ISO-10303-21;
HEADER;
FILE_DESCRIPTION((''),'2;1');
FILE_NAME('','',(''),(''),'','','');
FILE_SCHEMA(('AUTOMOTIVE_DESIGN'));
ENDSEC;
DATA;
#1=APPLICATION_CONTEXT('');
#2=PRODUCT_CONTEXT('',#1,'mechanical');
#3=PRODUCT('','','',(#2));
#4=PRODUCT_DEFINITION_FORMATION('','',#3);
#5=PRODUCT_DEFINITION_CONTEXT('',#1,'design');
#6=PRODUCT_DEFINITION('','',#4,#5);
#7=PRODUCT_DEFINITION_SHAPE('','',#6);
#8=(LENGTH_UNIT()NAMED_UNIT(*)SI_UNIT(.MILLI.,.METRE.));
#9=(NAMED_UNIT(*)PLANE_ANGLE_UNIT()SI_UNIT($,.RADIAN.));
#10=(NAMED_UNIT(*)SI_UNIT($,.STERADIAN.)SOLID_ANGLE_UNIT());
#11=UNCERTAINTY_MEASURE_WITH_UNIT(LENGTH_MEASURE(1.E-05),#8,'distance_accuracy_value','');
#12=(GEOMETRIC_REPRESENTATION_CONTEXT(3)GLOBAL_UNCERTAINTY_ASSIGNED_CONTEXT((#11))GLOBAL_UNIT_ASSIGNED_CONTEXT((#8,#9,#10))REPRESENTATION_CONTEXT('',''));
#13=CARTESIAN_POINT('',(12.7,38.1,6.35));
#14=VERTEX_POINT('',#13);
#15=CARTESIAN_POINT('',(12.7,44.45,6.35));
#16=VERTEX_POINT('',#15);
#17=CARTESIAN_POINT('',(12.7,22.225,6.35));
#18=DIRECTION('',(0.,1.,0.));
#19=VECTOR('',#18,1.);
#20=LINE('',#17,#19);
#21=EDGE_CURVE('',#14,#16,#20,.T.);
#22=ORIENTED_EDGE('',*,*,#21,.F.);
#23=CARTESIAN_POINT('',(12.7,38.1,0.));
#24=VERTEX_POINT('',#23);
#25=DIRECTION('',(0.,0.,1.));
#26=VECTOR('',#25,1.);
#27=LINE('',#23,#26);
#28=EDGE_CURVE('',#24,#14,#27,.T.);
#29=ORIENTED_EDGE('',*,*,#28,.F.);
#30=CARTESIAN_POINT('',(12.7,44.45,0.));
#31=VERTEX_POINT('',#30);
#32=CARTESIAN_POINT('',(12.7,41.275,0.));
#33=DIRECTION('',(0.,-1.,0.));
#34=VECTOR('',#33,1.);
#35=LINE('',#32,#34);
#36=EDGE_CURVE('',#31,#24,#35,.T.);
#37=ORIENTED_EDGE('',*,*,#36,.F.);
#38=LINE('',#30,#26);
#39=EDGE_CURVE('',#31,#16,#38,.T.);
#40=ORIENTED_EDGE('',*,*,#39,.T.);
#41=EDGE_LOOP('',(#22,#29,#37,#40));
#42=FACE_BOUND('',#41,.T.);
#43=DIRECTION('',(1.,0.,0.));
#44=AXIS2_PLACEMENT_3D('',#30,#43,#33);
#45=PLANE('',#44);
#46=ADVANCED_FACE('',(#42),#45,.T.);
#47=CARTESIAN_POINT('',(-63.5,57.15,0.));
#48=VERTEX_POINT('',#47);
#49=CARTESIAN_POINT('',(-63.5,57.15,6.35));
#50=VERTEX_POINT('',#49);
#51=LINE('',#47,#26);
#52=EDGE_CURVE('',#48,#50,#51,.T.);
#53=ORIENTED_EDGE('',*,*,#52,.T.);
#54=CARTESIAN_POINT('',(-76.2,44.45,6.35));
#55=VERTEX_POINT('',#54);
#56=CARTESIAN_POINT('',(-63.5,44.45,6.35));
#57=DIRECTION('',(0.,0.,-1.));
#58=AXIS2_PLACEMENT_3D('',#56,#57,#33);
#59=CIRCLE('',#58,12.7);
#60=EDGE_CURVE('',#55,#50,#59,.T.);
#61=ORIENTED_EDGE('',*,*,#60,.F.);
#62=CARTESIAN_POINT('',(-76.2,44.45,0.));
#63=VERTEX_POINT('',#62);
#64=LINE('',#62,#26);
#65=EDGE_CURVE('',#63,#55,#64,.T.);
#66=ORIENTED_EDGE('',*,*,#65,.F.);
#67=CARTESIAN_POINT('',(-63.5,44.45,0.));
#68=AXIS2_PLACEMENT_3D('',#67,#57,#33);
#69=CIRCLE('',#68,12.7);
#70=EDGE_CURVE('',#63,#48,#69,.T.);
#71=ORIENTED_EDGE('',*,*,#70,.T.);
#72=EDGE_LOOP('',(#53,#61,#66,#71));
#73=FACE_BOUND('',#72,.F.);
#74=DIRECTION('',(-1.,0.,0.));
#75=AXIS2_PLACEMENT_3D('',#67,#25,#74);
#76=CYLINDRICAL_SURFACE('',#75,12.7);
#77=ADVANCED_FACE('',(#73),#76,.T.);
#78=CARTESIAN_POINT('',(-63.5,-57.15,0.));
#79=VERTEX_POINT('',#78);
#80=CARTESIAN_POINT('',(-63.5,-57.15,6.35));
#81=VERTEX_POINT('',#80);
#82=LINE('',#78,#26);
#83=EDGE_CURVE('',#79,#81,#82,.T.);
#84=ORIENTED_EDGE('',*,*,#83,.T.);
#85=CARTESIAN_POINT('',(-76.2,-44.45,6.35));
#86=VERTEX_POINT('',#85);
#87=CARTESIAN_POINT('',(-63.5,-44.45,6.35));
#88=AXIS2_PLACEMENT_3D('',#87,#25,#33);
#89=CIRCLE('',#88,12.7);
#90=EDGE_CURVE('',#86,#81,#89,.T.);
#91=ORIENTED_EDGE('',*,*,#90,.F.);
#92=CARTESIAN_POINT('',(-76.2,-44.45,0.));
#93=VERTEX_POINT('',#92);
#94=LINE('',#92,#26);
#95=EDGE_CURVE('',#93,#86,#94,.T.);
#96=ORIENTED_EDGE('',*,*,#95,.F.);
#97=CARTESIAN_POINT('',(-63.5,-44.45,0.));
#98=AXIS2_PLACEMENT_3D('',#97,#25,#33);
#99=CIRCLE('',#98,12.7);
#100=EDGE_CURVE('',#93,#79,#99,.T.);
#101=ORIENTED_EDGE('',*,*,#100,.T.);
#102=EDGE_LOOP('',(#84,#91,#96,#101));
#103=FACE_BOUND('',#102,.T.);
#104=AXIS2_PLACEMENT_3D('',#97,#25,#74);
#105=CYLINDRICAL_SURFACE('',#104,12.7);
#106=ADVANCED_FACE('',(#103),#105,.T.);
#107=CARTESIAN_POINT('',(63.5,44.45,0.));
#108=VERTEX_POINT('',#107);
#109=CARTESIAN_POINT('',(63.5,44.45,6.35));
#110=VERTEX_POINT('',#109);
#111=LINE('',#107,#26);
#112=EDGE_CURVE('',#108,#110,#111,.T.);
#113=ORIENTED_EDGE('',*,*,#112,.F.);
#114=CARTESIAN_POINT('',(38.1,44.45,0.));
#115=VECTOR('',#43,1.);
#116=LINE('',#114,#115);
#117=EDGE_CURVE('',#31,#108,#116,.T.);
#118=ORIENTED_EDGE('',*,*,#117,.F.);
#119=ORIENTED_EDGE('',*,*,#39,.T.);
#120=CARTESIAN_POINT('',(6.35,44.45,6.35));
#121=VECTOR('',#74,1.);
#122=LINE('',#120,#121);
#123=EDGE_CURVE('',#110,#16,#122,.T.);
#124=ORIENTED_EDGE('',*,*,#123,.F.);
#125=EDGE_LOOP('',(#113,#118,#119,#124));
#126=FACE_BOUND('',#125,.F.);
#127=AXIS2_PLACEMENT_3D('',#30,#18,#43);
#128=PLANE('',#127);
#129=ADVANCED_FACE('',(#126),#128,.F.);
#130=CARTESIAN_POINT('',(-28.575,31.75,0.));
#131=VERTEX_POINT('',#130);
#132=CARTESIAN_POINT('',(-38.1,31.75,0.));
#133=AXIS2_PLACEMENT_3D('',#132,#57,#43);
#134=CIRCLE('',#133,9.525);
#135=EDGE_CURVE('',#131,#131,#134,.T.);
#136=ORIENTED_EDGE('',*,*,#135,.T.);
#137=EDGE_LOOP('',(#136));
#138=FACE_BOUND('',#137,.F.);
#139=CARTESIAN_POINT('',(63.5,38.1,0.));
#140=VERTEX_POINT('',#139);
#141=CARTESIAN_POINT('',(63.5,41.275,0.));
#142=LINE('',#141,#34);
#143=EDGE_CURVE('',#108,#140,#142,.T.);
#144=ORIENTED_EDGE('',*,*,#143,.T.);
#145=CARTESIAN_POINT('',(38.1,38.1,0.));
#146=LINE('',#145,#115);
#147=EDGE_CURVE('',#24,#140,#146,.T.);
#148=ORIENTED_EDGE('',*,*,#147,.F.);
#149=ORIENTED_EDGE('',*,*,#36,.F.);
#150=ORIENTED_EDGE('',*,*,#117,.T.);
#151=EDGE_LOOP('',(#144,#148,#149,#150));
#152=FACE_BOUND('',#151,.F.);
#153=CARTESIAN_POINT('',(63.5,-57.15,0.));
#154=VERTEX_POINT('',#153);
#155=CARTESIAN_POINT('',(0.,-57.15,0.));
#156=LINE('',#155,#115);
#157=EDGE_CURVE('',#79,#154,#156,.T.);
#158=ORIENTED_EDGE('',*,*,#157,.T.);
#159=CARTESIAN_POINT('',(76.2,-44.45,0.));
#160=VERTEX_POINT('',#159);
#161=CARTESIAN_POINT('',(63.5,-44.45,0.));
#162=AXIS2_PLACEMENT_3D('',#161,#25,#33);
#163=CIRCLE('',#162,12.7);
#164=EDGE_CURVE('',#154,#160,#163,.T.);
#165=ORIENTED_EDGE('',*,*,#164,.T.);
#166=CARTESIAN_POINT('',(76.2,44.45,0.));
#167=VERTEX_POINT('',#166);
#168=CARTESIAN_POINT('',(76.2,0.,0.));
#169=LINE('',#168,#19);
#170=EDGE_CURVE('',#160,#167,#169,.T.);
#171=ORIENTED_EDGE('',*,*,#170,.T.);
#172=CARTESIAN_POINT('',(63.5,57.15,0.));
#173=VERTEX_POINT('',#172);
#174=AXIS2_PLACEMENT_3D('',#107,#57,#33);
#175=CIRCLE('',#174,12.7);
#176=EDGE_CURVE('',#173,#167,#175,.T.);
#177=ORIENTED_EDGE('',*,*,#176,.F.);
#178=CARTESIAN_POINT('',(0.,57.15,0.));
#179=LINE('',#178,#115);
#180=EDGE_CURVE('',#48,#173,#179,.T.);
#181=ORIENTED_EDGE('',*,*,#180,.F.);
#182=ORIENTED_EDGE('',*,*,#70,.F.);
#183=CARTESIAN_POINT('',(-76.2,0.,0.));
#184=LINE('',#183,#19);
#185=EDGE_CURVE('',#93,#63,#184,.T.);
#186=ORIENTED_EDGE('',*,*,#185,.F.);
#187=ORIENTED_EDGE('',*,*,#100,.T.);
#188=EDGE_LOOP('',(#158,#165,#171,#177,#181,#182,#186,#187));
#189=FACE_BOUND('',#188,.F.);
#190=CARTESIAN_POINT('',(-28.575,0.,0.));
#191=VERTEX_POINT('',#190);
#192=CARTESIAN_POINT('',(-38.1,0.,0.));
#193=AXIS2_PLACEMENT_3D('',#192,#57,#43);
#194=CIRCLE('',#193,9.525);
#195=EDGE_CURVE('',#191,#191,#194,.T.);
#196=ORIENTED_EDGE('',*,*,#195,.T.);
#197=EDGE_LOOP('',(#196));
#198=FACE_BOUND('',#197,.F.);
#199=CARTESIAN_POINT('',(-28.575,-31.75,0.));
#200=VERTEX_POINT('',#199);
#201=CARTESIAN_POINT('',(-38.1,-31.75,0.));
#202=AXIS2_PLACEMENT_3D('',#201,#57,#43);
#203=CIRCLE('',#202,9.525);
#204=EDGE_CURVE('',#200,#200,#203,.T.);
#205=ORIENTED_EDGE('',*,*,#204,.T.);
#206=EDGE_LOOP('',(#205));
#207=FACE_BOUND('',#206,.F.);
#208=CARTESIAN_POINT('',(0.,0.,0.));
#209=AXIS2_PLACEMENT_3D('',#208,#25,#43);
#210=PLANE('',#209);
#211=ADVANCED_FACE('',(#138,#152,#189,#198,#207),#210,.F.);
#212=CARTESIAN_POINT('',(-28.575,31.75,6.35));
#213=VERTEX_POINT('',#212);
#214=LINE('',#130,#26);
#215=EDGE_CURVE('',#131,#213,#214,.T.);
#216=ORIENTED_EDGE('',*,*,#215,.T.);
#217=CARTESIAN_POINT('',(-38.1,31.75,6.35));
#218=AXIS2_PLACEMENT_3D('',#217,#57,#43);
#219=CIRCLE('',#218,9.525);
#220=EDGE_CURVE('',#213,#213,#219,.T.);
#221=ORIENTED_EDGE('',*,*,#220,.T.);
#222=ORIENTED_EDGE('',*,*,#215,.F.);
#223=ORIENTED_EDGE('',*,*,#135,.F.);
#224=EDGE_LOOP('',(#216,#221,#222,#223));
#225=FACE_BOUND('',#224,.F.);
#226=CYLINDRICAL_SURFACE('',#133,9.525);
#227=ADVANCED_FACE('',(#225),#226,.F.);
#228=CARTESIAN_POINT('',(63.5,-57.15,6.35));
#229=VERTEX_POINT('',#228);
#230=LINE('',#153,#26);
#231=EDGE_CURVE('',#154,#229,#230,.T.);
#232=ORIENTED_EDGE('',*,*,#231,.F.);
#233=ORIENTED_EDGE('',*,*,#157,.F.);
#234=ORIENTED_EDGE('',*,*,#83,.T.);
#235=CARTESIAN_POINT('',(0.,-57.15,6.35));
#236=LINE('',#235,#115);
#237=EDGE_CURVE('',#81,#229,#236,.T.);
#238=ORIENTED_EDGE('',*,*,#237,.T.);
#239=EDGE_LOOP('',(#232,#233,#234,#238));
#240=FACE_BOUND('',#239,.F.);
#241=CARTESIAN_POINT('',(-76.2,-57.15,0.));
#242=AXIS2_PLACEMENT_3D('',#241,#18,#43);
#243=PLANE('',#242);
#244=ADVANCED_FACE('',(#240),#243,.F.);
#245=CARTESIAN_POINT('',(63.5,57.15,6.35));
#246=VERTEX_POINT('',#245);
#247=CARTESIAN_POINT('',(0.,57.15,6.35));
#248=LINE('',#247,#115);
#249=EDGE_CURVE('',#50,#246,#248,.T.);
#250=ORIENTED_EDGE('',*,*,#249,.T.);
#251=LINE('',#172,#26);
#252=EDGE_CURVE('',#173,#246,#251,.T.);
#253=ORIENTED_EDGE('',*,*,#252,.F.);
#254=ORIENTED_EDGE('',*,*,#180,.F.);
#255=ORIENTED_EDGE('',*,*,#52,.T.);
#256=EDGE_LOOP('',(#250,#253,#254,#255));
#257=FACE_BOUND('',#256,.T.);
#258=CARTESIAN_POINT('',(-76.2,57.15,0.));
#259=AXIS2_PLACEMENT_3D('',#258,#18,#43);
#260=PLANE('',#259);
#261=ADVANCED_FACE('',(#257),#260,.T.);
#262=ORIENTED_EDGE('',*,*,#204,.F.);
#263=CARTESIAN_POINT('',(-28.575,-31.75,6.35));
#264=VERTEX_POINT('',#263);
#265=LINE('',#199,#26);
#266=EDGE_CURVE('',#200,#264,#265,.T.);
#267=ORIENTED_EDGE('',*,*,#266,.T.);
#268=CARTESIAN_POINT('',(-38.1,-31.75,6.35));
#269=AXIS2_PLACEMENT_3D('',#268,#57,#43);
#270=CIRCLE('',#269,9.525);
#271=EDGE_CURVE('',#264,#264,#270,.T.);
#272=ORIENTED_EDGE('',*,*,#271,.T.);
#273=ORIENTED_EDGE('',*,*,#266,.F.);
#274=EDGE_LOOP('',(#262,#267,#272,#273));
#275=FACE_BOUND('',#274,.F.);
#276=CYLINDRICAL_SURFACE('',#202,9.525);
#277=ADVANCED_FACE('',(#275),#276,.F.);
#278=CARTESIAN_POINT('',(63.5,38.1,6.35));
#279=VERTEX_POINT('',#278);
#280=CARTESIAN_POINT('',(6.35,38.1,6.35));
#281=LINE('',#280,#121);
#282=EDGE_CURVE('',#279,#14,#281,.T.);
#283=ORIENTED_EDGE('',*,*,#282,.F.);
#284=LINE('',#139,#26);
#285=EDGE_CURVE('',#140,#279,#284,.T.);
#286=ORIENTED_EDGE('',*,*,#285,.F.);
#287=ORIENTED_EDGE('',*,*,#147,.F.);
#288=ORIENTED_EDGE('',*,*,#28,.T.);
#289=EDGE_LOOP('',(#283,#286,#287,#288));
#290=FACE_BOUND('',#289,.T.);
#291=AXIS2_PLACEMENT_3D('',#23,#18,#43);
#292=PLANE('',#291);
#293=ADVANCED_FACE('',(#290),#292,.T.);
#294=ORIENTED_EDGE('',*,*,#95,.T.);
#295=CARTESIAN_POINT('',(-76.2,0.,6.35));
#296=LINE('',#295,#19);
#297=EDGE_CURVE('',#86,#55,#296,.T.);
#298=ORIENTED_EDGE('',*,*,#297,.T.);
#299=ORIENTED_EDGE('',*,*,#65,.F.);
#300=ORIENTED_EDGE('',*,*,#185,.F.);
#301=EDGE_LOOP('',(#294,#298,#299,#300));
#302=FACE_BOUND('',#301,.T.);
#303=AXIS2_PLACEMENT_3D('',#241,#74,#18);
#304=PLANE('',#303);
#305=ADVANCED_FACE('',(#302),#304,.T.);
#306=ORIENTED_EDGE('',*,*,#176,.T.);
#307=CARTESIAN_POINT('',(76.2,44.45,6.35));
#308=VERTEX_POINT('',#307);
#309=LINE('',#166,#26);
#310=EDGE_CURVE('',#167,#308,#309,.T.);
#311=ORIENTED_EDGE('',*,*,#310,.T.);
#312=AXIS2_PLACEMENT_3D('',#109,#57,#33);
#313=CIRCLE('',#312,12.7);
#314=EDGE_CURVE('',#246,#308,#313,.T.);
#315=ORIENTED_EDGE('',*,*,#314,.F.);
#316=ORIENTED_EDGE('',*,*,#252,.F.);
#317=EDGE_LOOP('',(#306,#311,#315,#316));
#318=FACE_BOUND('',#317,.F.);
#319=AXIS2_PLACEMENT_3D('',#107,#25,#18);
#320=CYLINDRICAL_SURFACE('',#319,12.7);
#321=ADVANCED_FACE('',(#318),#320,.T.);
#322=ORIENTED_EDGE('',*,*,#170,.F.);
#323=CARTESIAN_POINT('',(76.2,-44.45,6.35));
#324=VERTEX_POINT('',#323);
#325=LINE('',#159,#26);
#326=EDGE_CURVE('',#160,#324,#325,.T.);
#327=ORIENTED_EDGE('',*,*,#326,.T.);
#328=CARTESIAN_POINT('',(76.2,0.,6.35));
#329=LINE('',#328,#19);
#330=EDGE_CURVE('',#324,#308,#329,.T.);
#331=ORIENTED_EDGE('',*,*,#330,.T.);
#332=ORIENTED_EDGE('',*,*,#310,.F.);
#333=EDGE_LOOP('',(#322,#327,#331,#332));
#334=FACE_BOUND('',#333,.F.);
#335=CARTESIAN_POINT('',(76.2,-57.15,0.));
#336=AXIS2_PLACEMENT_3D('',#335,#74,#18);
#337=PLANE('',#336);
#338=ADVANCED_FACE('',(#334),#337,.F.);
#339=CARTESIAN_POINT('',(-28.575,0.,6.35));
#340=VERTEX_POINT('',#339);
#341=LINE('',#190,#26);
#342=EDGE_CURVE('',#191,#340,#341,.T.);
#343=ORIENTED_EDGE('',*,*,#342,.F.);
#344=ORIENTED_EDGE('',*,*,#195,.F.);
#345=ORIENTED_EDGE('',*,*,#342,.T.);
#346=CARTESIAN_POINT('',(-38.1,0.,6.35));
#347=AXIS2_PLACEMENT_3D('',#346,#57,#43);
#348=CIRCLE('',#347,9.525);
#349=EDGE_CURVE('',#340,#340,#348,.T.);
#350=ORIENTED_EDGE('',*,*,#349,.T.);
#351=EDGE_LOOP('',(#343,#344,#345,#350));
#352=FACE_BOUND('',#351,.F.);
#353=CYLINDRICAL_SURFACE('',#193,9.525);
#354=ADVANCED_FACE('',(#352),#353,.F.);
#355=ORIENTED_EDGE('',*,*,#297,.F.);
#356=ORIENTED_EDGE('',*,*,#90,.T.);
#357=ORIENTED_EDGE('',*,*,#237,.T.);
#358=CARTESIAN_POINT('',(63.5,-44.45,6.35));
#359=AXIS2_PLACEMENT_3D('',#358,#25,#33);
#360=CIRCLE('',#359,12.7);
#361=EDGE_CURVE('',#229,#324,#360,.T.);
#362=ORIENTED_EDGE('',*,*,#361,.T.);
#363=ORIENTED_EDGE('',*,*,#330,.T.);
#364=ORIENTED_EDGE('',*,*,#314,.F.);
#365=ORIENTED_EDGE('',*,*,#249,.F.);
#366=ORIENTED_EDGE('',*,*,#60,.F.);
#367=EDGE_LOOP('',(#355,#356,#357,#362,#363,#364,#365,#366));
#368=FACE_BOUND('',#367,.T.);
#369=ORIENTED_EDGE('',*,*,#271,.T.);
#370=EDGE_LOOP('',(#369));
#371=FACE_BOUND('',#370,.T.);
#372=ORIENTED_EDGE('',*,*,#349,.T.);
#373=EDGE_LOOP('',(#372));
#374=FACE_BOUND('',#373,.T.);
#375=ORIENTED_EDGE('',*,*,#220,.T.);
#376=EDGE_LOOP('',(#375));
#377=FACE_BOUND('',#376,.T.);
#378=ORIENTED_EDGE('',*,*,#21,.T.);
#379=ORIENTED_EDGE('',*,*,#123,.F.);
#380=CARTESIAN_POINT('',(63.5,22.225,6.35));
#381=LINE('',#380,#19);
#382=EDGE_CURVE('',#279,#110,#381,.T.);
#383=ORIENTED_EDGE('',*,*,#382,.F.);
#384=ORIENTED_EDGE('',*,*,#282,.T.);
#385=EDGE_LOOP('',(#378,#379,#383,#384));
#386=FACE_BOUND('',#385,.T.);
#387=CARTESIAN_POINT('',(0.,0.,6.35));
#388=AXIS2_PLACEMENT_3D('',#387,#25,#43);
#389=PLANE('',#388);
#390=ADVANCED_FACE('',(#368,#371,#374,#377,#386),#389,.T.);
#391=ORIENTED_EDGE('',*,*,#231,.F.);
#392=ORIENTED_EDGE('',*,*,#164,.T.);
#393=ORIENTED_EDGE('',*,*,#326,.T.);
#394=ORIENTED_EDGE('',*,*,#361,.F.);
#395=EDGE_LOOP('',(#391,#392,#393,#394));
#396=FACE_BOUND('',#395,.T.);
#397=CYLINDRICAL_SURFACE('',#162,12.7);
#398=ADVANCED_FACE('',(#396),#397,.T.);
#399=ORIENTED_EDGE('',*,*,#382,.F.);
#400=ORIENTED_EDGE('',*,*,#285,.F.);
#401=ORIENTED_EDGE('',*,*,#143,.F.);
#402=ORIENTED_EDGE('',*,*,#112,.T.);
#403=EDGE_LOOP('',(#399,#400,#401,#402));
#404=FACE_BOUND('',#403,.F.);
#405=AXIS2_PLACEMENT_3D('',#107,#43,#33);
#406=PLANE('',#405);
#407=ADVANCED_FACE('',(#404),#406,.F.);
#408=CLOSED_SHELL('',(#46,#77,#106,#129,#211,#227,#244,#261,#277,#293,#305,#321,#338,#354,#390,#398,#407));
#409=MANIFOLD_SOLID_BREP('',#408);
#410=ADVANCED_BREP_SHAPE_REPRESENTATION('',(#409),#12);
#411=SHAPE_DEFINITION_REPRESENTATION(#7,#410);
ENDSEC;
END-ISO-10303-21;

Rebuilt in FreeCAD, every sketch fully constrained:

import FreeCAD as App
import Part
import Sketcher

V = App.Vector
Q = App.Units.Quantity


def edges_at(feature, points):
    """Names of the edges that pass closest to the given points."""
    edges = feature.Shape.Edges
    near = lambda p: min(range(len(edges)), key=lambda i: edges[i].distToShape(Part.Vertex(*p))[0])
    return sorted({f"Edge{near(p) + 1}" for p in points})

doc = App.newDocument("Part")
body = doc.addObject("PartDesign::Body", "Body")

# Sketch on XY plane
sketch1 = body.newObject("Sketcher::SketchObject", "Sketch")
sketch1.AttachmentSupport = (doc.getObject("XY_Plane"), [""])
sketch1.MapMode = "FlatFace"
sketch1.addGeometry([
    Part.LineSegment(V(-76.2, 57.15, 0), V(-76.2, -57.15, 0)),
    Part.LineSegment(V(-76.2, -57.15, 0), V(76.2, -57.15, 0)),
    Part.LineSegment(V(76.2, -57.15, 0), V(76.2, 57.15, 0)),
    Part.LineSegment(V(76.2, 57.15, 0), V(-76.2, 57.15, 0)),
], False)
sketch1.addConstraint([
    Sketcher.Constraint("Coincident", 0, 2, 1, 1),
    Sketcher.Constraint("Coincident", 1, 2, 2, 1),
    Sketcher.Constraint("Coincident", 2, 2, 3, 1),
    Sketcher.Constraint("Coincident", 3, 2, 0, 1),
    Sketcher.Constraint("Vertical", 0),
    Sketcher.Constraint("Horizontal", 1),
    Sketcher.Constraint("Vertical", 2),
    Sketcher.Constraint("Horizontal", 3),
    Sketcher.Constraint("Symmetric", 0, 2, 2, 2, -1, 1),
    Sketcher.Constraint("DistanceX", 1, 1, 1, 2, Q("6 in")),
    Sketcher.Constraint("DistanceY", 0, 2, 0, 1, Q("4.5 in")),
])
pad1 = body.newObject("PartDesign::Pad", "Pad")
pad1.Profile = sketch1
pad1.Length = Q("0.25 in")

# Sketch on XY plane
sketch2 = body.newObject("Sketcher::SketchObject", "Sketch001")
sketch2.AttachmentSupport = (doc.getObject("XY_Plane"), [""])
sketch2.MapMode = "FlatFace"
sketch2.addGeometry([
    Part.Circle(V(-38.1, 0, 0), V(0, 0, 1), 9.525),
    Part.Circle(V(-38.1, -31.75, 0), V(0, 0, 1), 9.525),
    Part.Circle(V(-38.1, 31.75, 0), V(0, 0, 1), 9.525),
], False)
sketch2.addConstraint([
    Sketcher.Constraint("Equal", 0, 1),
    Sketcher.Constraint("Equal", 1, 2),
    Sketcher.Constraint("Symmetric", 1, 3, 2, 3, -1),
    Sketcher.Constraint("PointOnObject", 0, 3, -1),
    Sketcher.Constraint("Vertical", 0, 3, 1, 3),
    Sketcher.Constraint("Diameter", 0, Q("0.75 in")),
    Sketcher.Constraint("DistanceX", 0, 3, -1, 1, Q("1.5 in")),
    Sketcher.Constraint("DistanceY", 1, 3, 2, 3, Q("2.5 in")),
])
pocket1 = body.newObject("PartDesign::Pocket", "Pocket")
pocket1.Profile = sketch2
pocket1.Length = Q("1 in")
pocket1.Reversed = True
doc.recompute()

fillet = body.newObject("PartDesign::Fillet", "Fillet")
fillet.Base = (pocket1, edges_at(pocket1, [
    (-76.2, -57.15, 3.175),
    (-76.2, 57.15, 3.175),
    (76.2, 57.15, 3.175),
    (76.2, -57.15, 3.175),
]))
fillet.Radius = Q("0.5 in")

# Sketch on XY plane
sketch3 = body.newObject("Sketcher::SketchObject", "Sketch002")
sketch3.AttachmentSupport = (doc.getObject("XY_Plane"), [""])
sketch3.MapMode = "FlatFace"
sketch3.addGeometry([
    Part.LineSegment(V(12.7, 38.1, 0), V(12.7, 44.45, 0)),
    Part.LineSegment(V(12.7, 44.45, 0), V(63.5, 44.45, 0)),
    Part.LineSegment(V(63.5, 44.45, 0), V(63.5, 38.1, 0)),
    Part.LineSegment(V(63.5, 38.1, 0), V(12.7, 38.1, 0)),
], False)
sketch3.addConstraint([
    Sketcher.Constraint("Coincident", 0, 2, 1, 1),
    Sketcher.Constraint("Coincident", 1, 2, 2, 1),
    Sketcher.Constraint("Coincident", 2, 2, 3, 1),
    Sketcher.Constraint("Coincident", 3, 2, 0, 1),
    Sketcher.Constraint("Vertical", 0),
    Sketcher.Constraint("Horizontal", 1),
    Sketcher.Constraint("Vertical", 2),
    Sketcher.Constraint("Horizontal", 3),
    Sketcher.Constraint("DistanceX", 1, 1, 1, 2, Q("2 in")),
    Sketcher.Constraint("DistanceY", 0, 1, 0, 2, Q("0.25 in")),
    Sketcher.Constraint("DistanceX", -1, 1, 0, 2, Q("0.5 in")),
    Sketcher.Constraint("DistanceY", -1, 1, 2, 2, Q("1.5 in")),
])
pocket2 = body.newObject("PartDesign::Pocket", "Pocket001")
pocket2.Profile = sketch3
pocket2.Length = Q("1 in")
pocket2.Reversed = True

doc.recompute()
